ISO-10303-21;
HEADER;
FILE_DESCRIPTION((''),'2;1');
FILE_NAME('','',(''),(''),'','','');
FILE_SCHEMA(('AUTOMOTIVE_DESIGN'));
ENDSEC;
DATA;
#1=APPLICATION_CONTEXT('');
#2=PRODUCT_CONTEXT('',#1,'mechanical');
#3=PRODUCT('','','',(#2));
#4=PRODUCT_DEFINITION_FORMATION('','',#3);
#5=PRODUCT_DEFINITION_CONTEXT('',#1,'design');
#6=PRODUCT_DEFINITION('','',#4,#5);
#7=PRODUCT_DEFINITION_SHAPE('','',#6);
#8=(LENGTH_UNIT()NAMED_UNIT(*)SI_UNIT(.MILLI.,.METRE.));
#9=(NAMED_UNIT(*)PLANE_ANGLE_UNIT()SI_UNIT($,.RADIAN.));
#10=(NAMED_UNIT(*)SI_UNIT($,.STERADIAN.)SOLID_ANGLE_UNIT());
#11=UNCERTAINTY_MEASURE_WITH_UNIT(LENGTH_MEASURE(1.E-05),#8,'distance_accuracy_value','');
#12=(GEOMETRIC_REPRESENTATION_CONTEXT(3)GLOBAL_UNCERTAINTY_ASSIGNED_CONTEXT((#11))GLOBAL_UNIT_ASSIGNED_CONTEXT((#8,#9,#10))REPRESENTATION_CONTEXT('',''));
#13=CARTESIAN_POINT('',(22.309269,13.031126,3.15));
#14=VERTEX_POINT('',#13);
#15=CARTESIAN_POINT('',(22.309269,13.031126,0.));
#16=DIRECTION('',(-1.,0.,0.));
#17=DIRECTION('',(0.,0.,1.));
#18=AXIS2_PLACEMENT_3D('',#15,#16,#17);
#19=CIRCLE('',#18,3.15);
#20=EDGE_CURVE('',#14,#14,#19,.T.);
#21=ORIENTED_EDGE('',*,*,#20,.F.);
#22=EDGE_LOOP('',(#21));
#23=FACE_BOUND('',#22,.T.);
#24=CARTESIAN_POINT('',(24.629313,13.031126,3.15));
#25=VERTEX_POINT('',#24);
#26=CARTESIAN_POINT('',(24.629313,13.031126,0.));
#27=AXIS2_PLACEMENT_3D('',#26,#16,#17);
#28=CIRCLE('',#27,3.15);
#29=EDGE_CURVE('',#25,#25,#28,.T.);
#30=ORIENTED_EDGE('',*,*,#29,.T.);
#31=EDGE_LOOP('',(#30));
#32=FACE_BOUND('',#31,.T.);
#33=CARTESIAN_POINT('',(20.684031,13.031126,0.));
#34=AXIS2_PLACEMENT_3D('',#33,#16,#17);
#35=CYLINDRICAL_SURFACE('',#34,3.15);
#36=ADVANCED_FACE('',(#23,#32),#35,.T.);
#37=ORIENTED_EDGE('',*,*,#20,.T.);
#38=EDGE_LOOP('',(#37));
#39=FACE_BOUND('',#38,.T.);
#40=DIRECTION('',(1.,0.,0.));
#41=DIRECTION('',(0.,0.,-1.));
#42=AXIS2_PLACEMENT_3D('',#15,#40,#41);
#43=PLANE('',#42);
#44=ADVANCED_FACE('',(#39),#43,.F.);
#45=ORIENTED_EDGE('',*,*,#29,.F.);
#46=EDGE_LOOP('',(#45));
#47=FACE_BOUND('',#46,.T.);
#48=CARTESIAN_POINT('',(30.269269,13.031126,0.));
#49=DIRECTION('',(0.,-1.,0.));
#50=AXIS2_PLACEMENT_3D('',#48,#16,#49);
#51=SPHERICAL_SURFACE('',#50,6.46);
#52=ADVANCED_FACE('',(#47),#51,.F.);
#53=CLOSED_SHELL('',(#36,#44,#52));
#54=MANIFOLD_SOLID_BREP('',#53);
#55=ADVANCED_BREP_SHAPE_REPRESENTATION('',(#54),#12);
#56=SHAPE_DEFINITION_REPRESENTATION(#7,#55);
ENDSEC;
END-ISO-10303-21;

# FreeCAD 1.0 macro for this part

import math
import FreeCAD as App
import Part
import Sketcher

V = App.Vector

doc = App.newDocument("Part")
body = doc.addObject("PartDesign::Body", "Body")

sketch1 = body.newObject("Sketcher::SketchObject", "Sketch")
sketch1.AttachmentSupport = (doc.getObject("XY_Plane"), [""])
sketch1.MapMode = "FlatFace"
sketch1.addGeometry([
    Part.LineSegment(V(22.3, 16.2, 0), V(22.3, 13, 0)),
    Part.LineSegment(V(22.3, 13, 0), V(23.8, 13, 0)),
    Part.ArcOfCircle(Part.Circle(V(30.3, 13, 0), V(0, 0, 1), 6.5), math.radians(151), math.radians(180)),
    Part.LineSegment(V(24.6, 16.2, 0), V(22.3, 16.2, 0)),
], False)
sketch1.addGeometry(Part.LineSegment(V(22.3, 13, 0), V(30.3, 13, 0)), True)
sketch1.addConstraint([
    Sketcher.Constraint("Coincident", 0, 2, 1, 1),
    Sketcher.Constraint("Coincident", 1, 2, 2, 2),
    Sketcher.Constraint("Coincident", 2, 1, 3, 1),
    Sketcher.Constraint("Coincident", 3, 2, 0, 1),
    Sketcher.Constraint("Vertical", 0),
    Sketcher.Constraint("Horizontal", 1),
    Sketcher.Constraint("Horizontal", 3),
    Sketcher.Constraint("Horizontal", 4),
    Sketcher.Constraint("Coincident", 4, 1, 0, 2),
    Sketcher.Constraint("Coincident", 4, 2, 2, 3),
    Sketcher.Constraint("Radius", 2, 6.46),
    Sketcher.Constraint("DistanceX", 1, 1, 1, 2, 1.5),
    Sketcher.Constraint("DistanceY", 0, 2, 0, 1, 3.15),
    Sketcher.Constraint("DistanceX", -1, 1, 2, 3, 30.269269),
    Sketcher.Constraint("DistanceY", -1, 1, 2, 3, 13.031126),
])
revolution = body.newObject("PartDesign::Revolution", "Revolution")
revolution.Profile = sketch1
revolution.ReferenceAxis = (sketch1, ["Axis0"])
revolution.Angle = 360

doc.recompute()
